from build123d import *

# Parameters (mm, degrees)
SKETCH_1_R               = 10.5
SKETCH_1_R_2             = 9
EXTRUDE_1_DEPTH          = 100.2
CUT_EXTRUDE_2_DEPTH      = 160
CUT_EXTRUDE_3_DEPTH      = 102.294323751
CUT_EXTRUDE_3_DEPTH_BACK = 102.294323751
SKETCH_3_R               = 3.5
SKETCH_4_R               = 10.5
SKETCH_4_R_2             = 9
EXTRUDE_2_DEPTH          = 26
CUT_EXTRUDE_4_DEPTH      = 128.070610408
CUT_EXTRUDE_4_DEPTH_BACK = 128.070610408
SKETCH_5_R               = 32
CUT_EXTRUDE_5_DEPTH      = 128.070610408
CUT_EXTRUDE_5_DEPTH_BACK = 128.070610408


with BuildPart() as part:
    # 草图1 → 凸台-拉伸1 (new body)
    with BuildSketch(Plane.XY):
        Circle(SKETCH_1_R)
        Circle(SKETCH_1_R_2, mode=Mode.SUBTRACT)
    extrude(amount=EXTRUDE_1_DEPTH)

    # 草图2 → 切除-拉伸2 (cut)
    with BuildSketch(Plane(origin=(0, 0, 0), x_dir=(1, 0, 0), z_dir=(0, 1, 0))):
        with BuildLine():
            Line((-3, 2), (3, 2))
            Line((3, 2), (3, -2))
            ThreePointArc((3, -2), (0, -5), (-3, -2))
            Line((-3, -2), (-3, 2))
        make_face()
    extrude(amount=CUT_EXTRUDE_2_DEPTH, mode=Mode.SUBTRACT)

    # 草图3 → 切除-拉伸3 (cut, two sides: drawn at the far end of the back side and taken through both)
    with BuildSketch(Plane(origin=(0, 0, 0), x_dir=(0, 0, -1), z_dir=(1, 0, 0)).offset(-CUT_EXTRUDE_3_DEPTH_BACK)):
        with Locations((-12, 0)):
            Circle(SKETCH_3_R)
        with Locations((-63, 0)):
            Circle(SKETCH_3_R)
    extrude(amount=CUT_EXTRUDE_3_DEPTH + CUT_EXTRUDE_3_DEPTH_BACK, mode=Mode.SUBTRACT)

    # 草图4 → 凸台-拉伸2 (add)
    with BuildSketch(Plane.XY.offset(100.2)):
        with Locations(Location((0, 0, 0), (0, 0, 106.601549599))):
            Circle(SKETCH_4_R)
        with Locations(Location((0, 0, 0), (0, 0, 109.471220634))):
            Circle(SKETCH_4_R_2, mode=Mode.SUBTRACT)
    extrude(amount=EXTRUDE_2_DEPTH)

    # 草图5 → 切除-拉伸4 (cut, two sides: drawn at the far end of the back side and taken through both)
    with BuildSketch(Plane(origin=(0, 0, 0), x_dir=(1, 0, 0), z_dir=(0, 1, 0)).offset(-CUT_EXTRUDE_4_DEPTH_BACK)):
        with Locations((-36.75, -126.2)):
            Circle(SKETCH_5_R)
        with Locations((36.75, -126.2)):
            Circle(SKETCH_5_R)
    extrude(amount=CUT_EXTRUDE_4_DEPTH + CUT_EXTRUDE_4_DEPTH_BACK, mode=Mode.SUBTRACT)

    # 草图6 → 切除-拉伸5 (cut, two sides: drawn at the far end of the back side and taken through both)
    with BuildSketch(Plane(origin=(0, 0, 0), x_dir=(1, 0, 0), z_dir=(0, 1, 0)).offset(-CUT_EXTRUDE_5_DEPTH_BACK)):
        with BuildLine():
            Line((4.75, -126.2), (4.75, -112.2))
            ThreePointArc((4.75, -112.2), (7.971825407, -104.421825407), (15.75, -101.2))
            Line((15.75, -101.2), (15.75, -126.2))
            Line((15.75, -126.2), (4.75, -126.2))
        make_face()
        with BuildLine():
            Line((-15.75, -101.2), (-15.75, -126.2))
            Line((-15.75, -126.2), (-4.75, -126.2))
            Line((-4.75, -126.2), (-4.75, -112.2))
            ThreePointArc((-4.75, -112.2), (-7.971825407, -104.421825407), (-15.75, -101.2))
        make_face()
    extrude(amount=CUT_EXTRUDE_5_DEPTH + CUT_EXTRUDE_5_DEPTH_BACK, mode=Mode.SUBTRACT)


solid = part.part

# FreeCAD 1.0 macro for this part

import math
import FreeCAD as App
import Part
import Sketcher
from FreeCAD import Vector
Q = App.Units.Quantity

doc = App.newDocument("Part")
body = doc.addObject("PartDesign::Body", "Body")

# Sketch on XY plane
sketch1 = body.newObject("Sketcher::SketchObject", "Sketch")
sketch1.AttachmentSupport = (doc.getObject("XY_Plane"), [""])
sketch1.MapMode = "FlatFace"
sketch1.addGeometry([
    Part.Circle(Vector(0, 0, 0), Vector(0, 0, 1), 10),
    Part.Circle(Vector(0, 0, 0), Vector(0, 0, 1), 9),
], False)
sketch1.addConstraint([
    Sketcher.Constraint("Coincident", 0, 3, -1, 1),
    Sketcher.Constraint("Coincident", 1, 3, -1, 1),
    Sketcher.Constraint("Diameter", 0, Q("21 mm")),
    Sketcher.Constraint("Diameter", 1, Q("18 mm")),
])
pad1 = body.newObject("PartDesign::Pad", "Pad")
pad1.Profile = sketch1
pad1.Length = 100.2

# Sketch on XZ plane
sketch2 = body.newObject("Sketcher::SketchObject", "Sketch001")
sketch2.AttachmentSupport = (doc.getObject("XZ_Plane"), [""])
sketch2.MapMode = "FlatFace"
sketch2.addGeometry([
    Part.LineSegment(Vector(3, -2, 0), Vector(-3, -2, 0)),
    Part.LineSegment(Vector(-3, -2, 0), Vector(-3, 2, 0)),
    Part.ArcOfCircle(Part.Circle(Vector(0, 2, 0), Vector(0, 0, 1), 3), math.radians(0), math.radians(180)),
    Part.LineSegment(Vector(3, 2, 0), Vector(3, -2, 0)),
], False)
sketch2.addConstraint([
    Sketcher.Constraint("Coincident", 0, 2, 1, 1),
    Sketcher.Constraint("Tangent", 1, 2, 2, 2),
    Sketcher.Constraint("Tangent", 2, 1, 3, 1),
    Sketcher.Constraint("Coincident", 3, 2, 0, 1),
    Sketcher.Constraint("Horizontal", 0),
    Sketcher.Constraint("Vertical", 1),
    Sketcher.Constraint("Vertical", 3),
    Sketcher.Constraint("Symmetric", 0, 2, 2, 1, -1, 1),
    Sketcher.Constraint("Radius", 2, Q("3 mm")),
    Sketcher.Constraint("DistanceY", 1, 1, 1, 2, Q("4 mm")),
])
pocket1 = body.newObject("PartDesign::Pocket", "Pocket")
pocket1.Profile = sketch2
pocket1.Length = 160

# Sketch on YZ plane
sketch3 = body.newObject("Sketcher::SketchObject", "Sketch002")
sketch3.AttachmentSupport = (doc.getObject("YZ_Plane"), [""])
sketch3.MapMode = "FlatFace"
sketch3.addGeometry([
    Part.Circle(Vector(0, 12, 0), Vector(0, 0, 1), 3.5),
    Part.Circle(Vector(0, 63, 0), Vector(0, 0, 1), 3.5),
], False)
sketch3.addConstraint([
    Sketcher.Constraint("Equal", 0, 1),
    Sketcher.Constraint("PointOnObject", 0, 3, -2),
    Sketcher.Constraint("PointOnObject", 1, 3, -2),
    Sketcher.Constraint("Diameter", 0, Q("7 mm")),
    Sketcher.Constraint("DistanceY", -1, 1, 0, 3, Q("12 mm")),
    Sketcher.Constraint("DistanceY", -1, 1, 1, 3, Q("63 mm")),
])
pocket2 = body.newObject("PartDesign::Pocket", "Pocket001")
pocket2.Profile = sketch3
pocket2.Type = "ThroughAll"
pocket2.Midplane = True

# Sketch on XY plane
sketch4 = body.newObject("Sketcher::SketchObject", "Sketch003")
sketch4.AttachmentSupport = (doc.getObject("XY_Plane"), [""])
sketch4.MapMode = "FlatFace"
sketch4.AttachmentOffset = App.Placement(Vector(0, 0, 100.2), App.Rotation())
sketch4.addGeometry([
    Part.Circle(Vector(0, 0, 0), Vector(0, 0, 1), 10),
    Part.Circle(Vector(0, 0, 0), Vector(0, 0, 1), 9),
], False)
sketch4.addConstraint([
    Sketcher.Constraint("Coincident", 0, 3, -1, 1),
    Sketcher.Constraint("Coincident", 1, 3, -1, 1),
    Sketcher.Constraint("Diameter", 0, Q("21 mm")),
    Sketcher.Constraint("Diameter", 1, Q("18 mm")),
])
pad2 = body.newObject("PartDesign::Pad", "Pad001")
pad2.Profile = sketch4
pad2.Length = 26

# Sketch on XZ plane
sketch5 = body.newObject("Sketcher::SketchObject", "Sketch004")
sketch5.AttachmentSupport = (doc.getObject("XZ_Plane"), [""])
sketch5.MapMode = "FlatFace"
sketch5.addGeometry([
    Part.Circle(Vector(-37, 126, 0), Vector(0, 0, 1), 32),
    Part.Circle(Vector(37, 126, 0), Vector(0, 0, 1), 32),
], False)
sketch5.addConstraint([
    Sketcher.Constraint("Equal", 0, 1),
    Sketcher.Constraint("Symmetric", 0, 3, 1, 3, -2),
    Sketcher.Constraint("Diameter", 0, Q("64 mm")),
    Sketcher.Constraint("DistanceY", -1, 1, 0, 3, Q("126.2 mm")),
    Sketcher.Constraint("DistanceX", 0, 3, 1, 3, Q("73.5 mm")),
])
pocket3 = body.newObject("PartDesign::Pocket", "Pocket002")
pocket3.Profile = sketch5
pocket3.Type = "ThroughAll"
pocket3.Midplane = True

# Sketch on XZ plane
sketch6 = body.newObject("Sketcher::SketchObject", "Sketch005")
sketch6.AttachmentSupport = (doc.getObject("XZ_Plane"), [""])
sketch6.MapMode = "FlatFace"
sketch6.addGeometry([
    Part.LineSegment(Vector(5, 112, 0), Vector(5, 126, 0)),  # 0
    Part.LineSegment(Vector(5, 126, 0), Vector(16, 126, 0)),  # 1
    Part.LineSegment(Vector(16, 126, 0), Vector(16, 101, 0)),  # 2
    Part.ArcOfCircle(Part.Circle(Vector(16, 112, 0), Vector(0, 0, 1), 11), math.radians(180), math.radians(270)),  # 3
    Part.LineSegment(Vector(-16, 101, 0), Vector(-16, 126, 0)),  # 4
    Part.LineSegment(Vector(-16, 126, 0), Vector(-5, 126, 0)),  # 5
    Part.LineSegment(Vector(-5, 126, 0), Vector(-5, 112, 0)),  # 6
    Part.ArcOfCircle(Part.Circle(Vector(-16, 112, 0), Vector(0, 0, 1), 11), math.radians(-90), math.radians(0)),  # 7
], False)
sketch6.addConstraint([
    Sketcher.Constraint("Coincident", 0, 2, 1, 1),
    Sketcher.Constraint("Coincident", 1, 2, 2, 1),
    Sketcher.Constraint("Coincident", 2, 2, 3, 2),
    Sketcher.Constraint("Tangent", 3, 1, 0, 1),
    Sketcher.Constraint("Coincident", 4, 2, 5, 1),
    Sketcher.Constraint("Coincident", 5, 2, 6, 1),
    Sketcher.Constraint("Tangent", 6, 2, 7, 2),
    Sketcher.Constraint("Coincident", 7, 1, 4, 1),
    Sketcher.Constraint("Vertical", 0),
    Sketcher.Constraint("Horizontal", 1),
    Sketcher.Constraint("Vertical", 2),
    Sketcher.Constraint("Vertical", 4),
    Sketcher.Constraint("Horizontal", 5),
    Sketcher.Constraint("Vertical", 6),
    Sketcher.Constraint("Equal", 3, 7),
    Sketcher.Constraint("Symmetric", 3, 3, 7, 3, -2),
    Sketcher.Constraint("Symmetric", 1, 2, 4, 2, -2),
    Sketcher.Constraint("Vertical", 3, 3, 1, 2),
    Sketcher.Constraint("Radius", 3, Q("11 mm")),
    Sketcher.Constraint("DistanceY", 0, 1, 0, 2, Q("14 mm")),
    Sketcher.Constraint("DistanceY", -1, 1, 3, 3, Q("112.2 mm")),
    Sketcher.Constraint("DistanceX", 7, 3, 3, 3, Q("31.5 mm")),
])
pocket4 = body.newObject("PartDesign::Pocket", "Pocket003")
pocket4.Profile = sketch6
pocket4.Type = "ThroughAll"
pocket4.Midplane = True

doc.recompute()
